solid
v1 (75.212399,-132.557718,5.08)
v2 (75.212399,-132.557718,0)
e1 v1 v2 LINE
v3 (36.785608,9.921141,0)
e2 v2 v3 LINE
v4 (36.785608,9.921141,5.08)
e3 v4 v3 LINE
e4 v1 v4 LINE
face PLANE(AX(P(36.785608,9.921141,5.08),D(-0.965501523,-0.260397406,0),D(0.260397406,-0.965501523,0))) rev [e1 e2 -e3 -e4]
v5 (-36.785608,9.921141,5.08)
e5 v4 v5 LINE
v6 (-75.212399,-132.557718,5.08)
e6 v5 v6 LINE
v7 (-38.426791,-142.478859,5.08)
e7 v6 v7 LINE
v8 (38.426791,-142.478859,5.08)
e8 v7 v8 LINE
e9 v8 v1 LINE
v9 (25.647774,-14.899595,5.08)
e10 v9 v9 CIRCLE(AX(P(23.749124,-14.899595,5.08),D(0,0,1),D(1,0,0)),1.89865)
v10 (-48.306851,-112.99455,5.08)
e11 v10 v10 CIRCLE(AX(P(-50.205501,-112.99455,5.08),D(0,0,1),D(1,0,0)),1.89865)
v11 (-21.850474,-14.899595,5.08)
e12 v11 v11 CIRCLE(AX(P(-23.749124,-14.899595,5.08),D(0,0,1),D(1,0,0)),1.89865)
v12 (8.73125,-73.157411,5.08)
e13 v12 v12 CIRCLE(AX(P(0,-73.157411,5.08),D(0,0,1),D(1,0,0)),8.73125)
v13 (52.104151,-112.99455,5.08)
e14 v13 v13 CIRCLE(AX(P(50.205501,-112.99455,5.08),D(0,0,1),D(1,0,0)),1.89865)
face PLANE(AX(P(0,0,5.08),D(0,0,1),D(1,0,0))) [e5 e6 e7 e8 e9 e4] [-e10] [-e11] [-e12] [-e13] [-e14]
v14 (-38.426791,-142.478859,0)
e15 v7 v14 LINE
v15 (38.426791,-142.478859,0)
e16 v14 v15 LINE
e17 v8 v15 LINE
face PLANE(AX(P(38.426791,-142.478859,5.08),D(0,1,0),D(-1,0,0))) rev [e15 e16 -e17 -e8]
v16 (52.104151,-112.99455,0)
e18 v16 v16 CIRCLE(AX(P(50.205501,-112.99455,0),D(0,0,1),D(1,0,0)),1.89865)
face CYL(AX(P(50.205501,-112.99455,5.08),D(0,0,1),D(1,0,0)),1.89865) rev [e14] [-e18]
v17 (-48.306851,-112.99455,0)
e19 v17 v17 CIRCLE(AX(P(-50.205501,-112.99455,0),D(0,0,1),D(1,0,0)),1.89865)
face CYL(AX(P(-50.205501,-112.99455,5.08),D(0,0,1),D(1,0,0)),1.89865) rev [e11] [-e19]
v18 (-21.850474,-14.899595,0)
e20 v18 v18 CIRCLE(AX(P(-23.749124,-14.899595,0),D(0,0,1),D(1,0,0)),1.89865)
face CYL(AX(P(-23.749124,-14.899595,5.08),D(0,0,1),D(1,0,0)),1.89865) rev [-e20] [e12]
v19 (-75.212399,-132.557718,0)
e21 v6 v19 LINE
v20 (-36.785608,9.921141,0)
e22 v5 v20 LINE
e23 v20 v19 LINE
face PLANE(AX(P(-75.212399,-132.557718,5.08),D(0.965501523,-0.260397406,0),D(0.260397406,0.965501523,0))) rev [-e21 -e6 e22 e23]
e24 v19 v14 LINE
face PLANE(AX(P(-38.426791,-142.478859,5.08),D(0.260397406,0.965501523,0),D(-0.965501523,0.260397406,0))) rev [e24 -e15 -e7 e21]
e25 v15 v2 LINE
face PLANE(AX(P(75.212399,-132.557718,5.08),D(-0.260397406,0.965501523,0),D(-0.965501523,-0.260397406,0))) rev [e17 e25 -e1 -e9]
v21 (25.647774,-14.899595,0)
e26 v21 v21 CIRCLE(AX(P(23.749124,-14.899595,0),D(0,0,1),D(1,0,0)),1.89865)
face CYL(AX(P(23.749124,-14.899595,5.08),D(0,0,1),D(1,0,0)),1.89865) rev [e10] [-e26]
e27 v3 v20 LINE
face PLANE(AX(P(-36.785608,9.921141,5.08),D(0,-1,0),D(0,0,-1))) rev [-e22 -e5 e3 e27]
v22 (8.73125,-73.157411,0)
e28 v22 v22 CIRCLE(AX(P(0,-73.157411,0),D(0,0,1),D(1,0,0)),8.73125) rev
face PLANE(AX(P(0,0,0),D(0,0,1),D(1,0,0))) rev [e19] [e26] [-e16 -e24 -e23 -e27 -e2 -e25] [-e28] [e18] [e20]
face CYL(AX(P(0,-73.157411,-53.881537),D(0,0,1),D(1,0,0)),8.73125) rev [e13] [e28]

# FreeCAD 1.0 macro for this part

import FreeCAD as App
import Part
import Sketcher

V = App.Vector
Q = App.Units.Quantity

doc = App.newDocument("Part")
params = doc.addObject("Spreadsheet::Sheet", "Params")
for row, (alias, value) in enumerate([
    ("sketch1_length", "1.5 in"),
    ("pad1_length", "0.2 in"),
    ("sketch2_diameter", "1.5 in"),
    ("sketch2_diameter2", "0.4375 in"),
    ("hole_diameter", "0.1495 in"),
    ("sketch4_diameter", "1.5 in"),
    ("sketch4_diameter2", "0.6875 in"),
    ("sketch4_diameter3", "0.4375 in"),
    ("pad2_length", "0.2 in"),
], start=1):
    params.set(f"A{row}", alias)
    params.set(f"B{row}", "=" + value)
    params.setAlias(f"B{row}", alias)

body = doc.addObject("PartDesign::Body", "Body")

# Sketch on XY plane
sketch1 = doc.addObject("Sketcher::SketchObject", "Sketch")
body.addObject(sketch1)
sketch1.AttachmentSupport = (doc.XY_Plane, [""])
sketch1.MapMode = "FlatFace"
sketch1.addGeometry(Part.LineSegment(V(37, 10, 0), V(-37, 10, 0)), False)
sketch1.addGeometry(Part.LineSegment(V(-37, 10, 0), V(-75, -133, 0)), False)
sketch1.addGeometry(Part.LineSegment(V(-75, -133, 0), V(-38, -142, 0)), False)
sketch1.addGeometry(Part.LineSegment(V(-38, -142, 0), V(38, -142, 0)), False)
sketch1.addGeometry(Part.LineSegment(V(38, -142, 0), V(75, -133, 0)), False)
sketch1.addGeometry(Part.LineSegment(V(75, -133, 0), V(37, 10, 0)), False)
sketch1.addConstraint(Sketcher.Constraint("Coincident", 0, 2, 1, 1))
sketch1.addConstraint(Sketcher.Constraint("Coincident", 1, 2, 2, 1))
sketch1.addConstraint(Sketcher.Constraint("Coincident", 2, 2, 3, 1))
sketch1.addConstraint(Sketcher.Constraint("Coincident", 3, 2, 4, 1))
sketch1.addConstraint(Sketcher.Constraint("Coincident", 4, 2, 5, 1))
sketch1.addConstraint(Sketcher.Constraint("Coincident", 5, 2, 0, 1))
sketch1.addConstraint(Sketcher.Constraint("Horizontal", 0))
sketch1.addConstraint(Sketcher.Constraint("Horizontal", 3))
sketch1.addConstraint(Sketcher.Constraint("Symmetric", 1, 2, 4, 2, -2))
sketch1.addConstraint(Sketcher.Constraint("Perpendicular", 1, 2))
sketch1.addConstraint(Sketcher.Constraint("Perpendicular", 4, 5))
sketch1.addConstraint(Sketcher.Constraint("Equal", 2, 4))
sketch1.addConstraint(Sketcher.Constraint("DistanceY", 2, 2, 0, 2, Q("6 in")))
sketch1.addConstraint(Sketcher.Constraint("Distance", 2, Q("1.5 in")))
sketch1.addConstraint(Sketcher.Constraint("DistanceX", 1, 2, -1, 1, 75.212399))
sketch1.addConstraint(Sketcher.Constraint("DistanceX", 0, 2, 3, 2, 75.212399))
sketch1.addConstraint(Sketcher.Constraint("DistanceY", -1, 1, 0, 2, 9.921141))
sketch1.setExpression("Constraints[13]", "Params.sketch1_length")
pad1 = doc.addObject("PartDesign::Pad", "Pad")
body.addObject(pad1)
pad1.Profile = sketch1
pad1.setExpression("Length", "Params.pad1_length")

# Sketch on XY plane
sketch2 = doc.addObject("Sketcher::SketchObject", "Sketch001")
body.addObject(sketch2)
sketch2.AttachmentSupport = (doc.XY_Plane, [""])
sketch2.MapMode = "FlatFace"
sketch2.AttachmentOffset = App.Placement(V(0, 0, 0.2 * 25.4), App.Rotation())
sketch2.addGeometry(Part.Circle(V(0, -73, 0), V(0, 0, 1), 19), False)
sketch2.addGeometry(Part.Circle(V(-37, -73, 0), V(0, 0, 1), 6), False)
sketch2.addGeometry(Part.Circle(V(37, -73, 0), V(0, 0, 1), 6), False)
sketch2.addConstraint(Sketcher.Constraint("Equal", 1, 2))
sketch2.addConstraint(Sketcher.Constraint("Symmetric", 1, 3, 2, 3, -2))
sketch2.addConstraint(Sketcher.Constraint("PointOnObject", 0, 3, -2))
sketch2.addConstraint(Sketcher.Constraint("Horizontal", 0, 3, 1, 3))
sketch2.addConstraint(Sketcher.Constraint("Diameter", 0, Q("1.5 in")))
sketch2.addConstraint(Sketcher.Constraint("Diameter", 1, Q("0.4375 in")))
sketch2.addConstraint(Sketcher.Constraint("DistanceX", 1, 3, -1, 1, Q("1.4375 in")))
sketch2.addConstraint(Sketcher.Constraint("DistanceY", 0, 3, -1, 1, 73.157411))
sketch2.setExpression("Constraints[4]", "Params.sketch2_diameter")
sketch2.setExpression("Constraints[5]", "Params.sketch2_diameter2")
pocket1 = doc.addObject("PartDesign::Pocket", "Pocket")
body.addObject(pocket1)
pocket1.Profile = sketch2
pocket1.Type = "ThroughAll"

# Sketch on XY plane
sketch3 = doc.addObject("Sketcher::SketchObject", "Sketch002")
body.addObject(sketch3)
sketch3.AttachmentSupport = (doc.XY_Plane, [""])
sketch3.MapMode = "FlatFace"
sketch3.AttachmentOffset = App.Placement(V(0, 0, 0.2 * 25.4), App.Rotation())
sketch3.addGeometry(Part.Circle(V(50.2, -113, 0), V(0, 0, 1), 1.9), False)
sketch3.addGeometry(Part.Circle(V(-50.2, -113, 0), V(0, 0, 1), 1.9), False)
sketch3.addGeometry(Part.Circle(V(-23.7, -14.9, 0), V(0, 0, 1), 1.9), False)
sketch3.addGeometry(Part.Circle(V(23.7, -14.9, 0), V(0, 0, 1), 1.9), False)
sketch3.addConstraint(Sketcher.Constraint("Equal", 0, 1))
sketch3.addConstraint(Sketcher.Constraint("Equal", 1, 2))
sketch3.addConstraint(Sketcher.Constraint("Equal", 2, 3))
sketch3.addConstraint(Sketcher.Constraint("Symmetric", 0, 3, 1, 3, -2))
sketch3.addConstraint(Sketcher.Constraint("Symmetric", 2, 3, 3, 3, -2))
sketch3.addConstraint(Sketcher.Constraint("Diameter", 0, Q("0.1495 in")))
sketch3.addConstraint(Sketcher.Constraint("DistanceX", -1, 1, 0, 3, 50.205501))
sketch3.addConstraint(Sketcher.Constraint("DistanceY", 0, 3, -1, 1, 112.99455))
sketch3.addConstraint(Sketcher.Constraint("DistanceX", 2, 3, 3, 3, 47.498249))
sketch3.addConstraint(Sketcher.Constraint("DistanceY", 2, 3, -1, 1, 14.899595))
doc.recompute()
hole = doc.addObject("PartDesign::Hole", "Hole")
body.addObject(hole)
hole.Profile = sketch3
hole.ThreadType = "None"
hole.setExpression("Diameter", "Params.hole_diameter")
hole.DepthType = "ThroughAll"

# Sketch on XY plane
sketch4 = doc.addObject("Sketcher::SketchObject", "Sketch003")
body.addObject(sketch4)
sketch4.AttachmentSupport = (doc.XY_Plane, [""])
sketch4.MapMode = "FlatFace"
sketch4.AttachmentOffset = App.Placement(V(0, 0, 0.2 * 25.4), App.Rotation())
sketch4.addGeometry(Part.Circle(V(0, -73, 0), V(0, 0, 1), 19), False)
sketch4.addGeometry(Part.Circle(V(0, -73, 0), V(0, 0, 1), 9), False)
sketch4.addGeometry(Part.Circle(V(37, -73, 0), V(0, 0, 1), 6), False)
sketch4.addGeometry(Part.Circle(V(-37, -73, 0), V(0, 0, 1), 6), False)
sketch4.addConstraint(Sketcher.Constraint("Coincident", 1, 3, 0, 3))
sketch4.addConstraint(Sketcher.Constraint("Equal", 2, 3))
sketch4.addConstraint(Sketcher.Constraint("Symmetric", 2, 3, 3, 3, -2))
sketch4.addConstraint(Sketcher.Constraint("PointOnObject", 0, 3, -2))
sketch4.addConstraint(Sketcher.Constraint("Horizontal", 1, 3, 2, 3))
sketch4.addConstraint(Sketcher.Constraint("Diameter", 0, Q("1.5 in")))
sketch4.addConstraint(Sketcher.Constraint("Diameter", 1, Q("0.6875 in")))
sketch4.addConstraint(Sketcher.Constraint("Diameter", 2, Q("0.4375 in")))
sketch4.addConstraint(Sketcher.Constraint("DistanceX", -1, 1, 2, 3, Q("1.4375 in")))
sketch4.addConstraint(Sketcher.Constraint("DistanceY", 0, 3, -1, 1, 73.157411))
sketch4.setExpression("Constraints[5]", "Params.sketch4_diameter")
sketch4.setExpression("Constraints[6]", "Params.sketch4_diameter2")
sketch4.setExpression("Constraints[7]", "Params.sketch4_diameter3")
pad2 = doc.addObject("PartDesign::Pad", "Pad001")
body.addObject(pad2)
pad2.Profile = sketch4
pad2.setExpression("Length", "Params.pad2_length")
pad2.Reversed = True

doc.recompute()
